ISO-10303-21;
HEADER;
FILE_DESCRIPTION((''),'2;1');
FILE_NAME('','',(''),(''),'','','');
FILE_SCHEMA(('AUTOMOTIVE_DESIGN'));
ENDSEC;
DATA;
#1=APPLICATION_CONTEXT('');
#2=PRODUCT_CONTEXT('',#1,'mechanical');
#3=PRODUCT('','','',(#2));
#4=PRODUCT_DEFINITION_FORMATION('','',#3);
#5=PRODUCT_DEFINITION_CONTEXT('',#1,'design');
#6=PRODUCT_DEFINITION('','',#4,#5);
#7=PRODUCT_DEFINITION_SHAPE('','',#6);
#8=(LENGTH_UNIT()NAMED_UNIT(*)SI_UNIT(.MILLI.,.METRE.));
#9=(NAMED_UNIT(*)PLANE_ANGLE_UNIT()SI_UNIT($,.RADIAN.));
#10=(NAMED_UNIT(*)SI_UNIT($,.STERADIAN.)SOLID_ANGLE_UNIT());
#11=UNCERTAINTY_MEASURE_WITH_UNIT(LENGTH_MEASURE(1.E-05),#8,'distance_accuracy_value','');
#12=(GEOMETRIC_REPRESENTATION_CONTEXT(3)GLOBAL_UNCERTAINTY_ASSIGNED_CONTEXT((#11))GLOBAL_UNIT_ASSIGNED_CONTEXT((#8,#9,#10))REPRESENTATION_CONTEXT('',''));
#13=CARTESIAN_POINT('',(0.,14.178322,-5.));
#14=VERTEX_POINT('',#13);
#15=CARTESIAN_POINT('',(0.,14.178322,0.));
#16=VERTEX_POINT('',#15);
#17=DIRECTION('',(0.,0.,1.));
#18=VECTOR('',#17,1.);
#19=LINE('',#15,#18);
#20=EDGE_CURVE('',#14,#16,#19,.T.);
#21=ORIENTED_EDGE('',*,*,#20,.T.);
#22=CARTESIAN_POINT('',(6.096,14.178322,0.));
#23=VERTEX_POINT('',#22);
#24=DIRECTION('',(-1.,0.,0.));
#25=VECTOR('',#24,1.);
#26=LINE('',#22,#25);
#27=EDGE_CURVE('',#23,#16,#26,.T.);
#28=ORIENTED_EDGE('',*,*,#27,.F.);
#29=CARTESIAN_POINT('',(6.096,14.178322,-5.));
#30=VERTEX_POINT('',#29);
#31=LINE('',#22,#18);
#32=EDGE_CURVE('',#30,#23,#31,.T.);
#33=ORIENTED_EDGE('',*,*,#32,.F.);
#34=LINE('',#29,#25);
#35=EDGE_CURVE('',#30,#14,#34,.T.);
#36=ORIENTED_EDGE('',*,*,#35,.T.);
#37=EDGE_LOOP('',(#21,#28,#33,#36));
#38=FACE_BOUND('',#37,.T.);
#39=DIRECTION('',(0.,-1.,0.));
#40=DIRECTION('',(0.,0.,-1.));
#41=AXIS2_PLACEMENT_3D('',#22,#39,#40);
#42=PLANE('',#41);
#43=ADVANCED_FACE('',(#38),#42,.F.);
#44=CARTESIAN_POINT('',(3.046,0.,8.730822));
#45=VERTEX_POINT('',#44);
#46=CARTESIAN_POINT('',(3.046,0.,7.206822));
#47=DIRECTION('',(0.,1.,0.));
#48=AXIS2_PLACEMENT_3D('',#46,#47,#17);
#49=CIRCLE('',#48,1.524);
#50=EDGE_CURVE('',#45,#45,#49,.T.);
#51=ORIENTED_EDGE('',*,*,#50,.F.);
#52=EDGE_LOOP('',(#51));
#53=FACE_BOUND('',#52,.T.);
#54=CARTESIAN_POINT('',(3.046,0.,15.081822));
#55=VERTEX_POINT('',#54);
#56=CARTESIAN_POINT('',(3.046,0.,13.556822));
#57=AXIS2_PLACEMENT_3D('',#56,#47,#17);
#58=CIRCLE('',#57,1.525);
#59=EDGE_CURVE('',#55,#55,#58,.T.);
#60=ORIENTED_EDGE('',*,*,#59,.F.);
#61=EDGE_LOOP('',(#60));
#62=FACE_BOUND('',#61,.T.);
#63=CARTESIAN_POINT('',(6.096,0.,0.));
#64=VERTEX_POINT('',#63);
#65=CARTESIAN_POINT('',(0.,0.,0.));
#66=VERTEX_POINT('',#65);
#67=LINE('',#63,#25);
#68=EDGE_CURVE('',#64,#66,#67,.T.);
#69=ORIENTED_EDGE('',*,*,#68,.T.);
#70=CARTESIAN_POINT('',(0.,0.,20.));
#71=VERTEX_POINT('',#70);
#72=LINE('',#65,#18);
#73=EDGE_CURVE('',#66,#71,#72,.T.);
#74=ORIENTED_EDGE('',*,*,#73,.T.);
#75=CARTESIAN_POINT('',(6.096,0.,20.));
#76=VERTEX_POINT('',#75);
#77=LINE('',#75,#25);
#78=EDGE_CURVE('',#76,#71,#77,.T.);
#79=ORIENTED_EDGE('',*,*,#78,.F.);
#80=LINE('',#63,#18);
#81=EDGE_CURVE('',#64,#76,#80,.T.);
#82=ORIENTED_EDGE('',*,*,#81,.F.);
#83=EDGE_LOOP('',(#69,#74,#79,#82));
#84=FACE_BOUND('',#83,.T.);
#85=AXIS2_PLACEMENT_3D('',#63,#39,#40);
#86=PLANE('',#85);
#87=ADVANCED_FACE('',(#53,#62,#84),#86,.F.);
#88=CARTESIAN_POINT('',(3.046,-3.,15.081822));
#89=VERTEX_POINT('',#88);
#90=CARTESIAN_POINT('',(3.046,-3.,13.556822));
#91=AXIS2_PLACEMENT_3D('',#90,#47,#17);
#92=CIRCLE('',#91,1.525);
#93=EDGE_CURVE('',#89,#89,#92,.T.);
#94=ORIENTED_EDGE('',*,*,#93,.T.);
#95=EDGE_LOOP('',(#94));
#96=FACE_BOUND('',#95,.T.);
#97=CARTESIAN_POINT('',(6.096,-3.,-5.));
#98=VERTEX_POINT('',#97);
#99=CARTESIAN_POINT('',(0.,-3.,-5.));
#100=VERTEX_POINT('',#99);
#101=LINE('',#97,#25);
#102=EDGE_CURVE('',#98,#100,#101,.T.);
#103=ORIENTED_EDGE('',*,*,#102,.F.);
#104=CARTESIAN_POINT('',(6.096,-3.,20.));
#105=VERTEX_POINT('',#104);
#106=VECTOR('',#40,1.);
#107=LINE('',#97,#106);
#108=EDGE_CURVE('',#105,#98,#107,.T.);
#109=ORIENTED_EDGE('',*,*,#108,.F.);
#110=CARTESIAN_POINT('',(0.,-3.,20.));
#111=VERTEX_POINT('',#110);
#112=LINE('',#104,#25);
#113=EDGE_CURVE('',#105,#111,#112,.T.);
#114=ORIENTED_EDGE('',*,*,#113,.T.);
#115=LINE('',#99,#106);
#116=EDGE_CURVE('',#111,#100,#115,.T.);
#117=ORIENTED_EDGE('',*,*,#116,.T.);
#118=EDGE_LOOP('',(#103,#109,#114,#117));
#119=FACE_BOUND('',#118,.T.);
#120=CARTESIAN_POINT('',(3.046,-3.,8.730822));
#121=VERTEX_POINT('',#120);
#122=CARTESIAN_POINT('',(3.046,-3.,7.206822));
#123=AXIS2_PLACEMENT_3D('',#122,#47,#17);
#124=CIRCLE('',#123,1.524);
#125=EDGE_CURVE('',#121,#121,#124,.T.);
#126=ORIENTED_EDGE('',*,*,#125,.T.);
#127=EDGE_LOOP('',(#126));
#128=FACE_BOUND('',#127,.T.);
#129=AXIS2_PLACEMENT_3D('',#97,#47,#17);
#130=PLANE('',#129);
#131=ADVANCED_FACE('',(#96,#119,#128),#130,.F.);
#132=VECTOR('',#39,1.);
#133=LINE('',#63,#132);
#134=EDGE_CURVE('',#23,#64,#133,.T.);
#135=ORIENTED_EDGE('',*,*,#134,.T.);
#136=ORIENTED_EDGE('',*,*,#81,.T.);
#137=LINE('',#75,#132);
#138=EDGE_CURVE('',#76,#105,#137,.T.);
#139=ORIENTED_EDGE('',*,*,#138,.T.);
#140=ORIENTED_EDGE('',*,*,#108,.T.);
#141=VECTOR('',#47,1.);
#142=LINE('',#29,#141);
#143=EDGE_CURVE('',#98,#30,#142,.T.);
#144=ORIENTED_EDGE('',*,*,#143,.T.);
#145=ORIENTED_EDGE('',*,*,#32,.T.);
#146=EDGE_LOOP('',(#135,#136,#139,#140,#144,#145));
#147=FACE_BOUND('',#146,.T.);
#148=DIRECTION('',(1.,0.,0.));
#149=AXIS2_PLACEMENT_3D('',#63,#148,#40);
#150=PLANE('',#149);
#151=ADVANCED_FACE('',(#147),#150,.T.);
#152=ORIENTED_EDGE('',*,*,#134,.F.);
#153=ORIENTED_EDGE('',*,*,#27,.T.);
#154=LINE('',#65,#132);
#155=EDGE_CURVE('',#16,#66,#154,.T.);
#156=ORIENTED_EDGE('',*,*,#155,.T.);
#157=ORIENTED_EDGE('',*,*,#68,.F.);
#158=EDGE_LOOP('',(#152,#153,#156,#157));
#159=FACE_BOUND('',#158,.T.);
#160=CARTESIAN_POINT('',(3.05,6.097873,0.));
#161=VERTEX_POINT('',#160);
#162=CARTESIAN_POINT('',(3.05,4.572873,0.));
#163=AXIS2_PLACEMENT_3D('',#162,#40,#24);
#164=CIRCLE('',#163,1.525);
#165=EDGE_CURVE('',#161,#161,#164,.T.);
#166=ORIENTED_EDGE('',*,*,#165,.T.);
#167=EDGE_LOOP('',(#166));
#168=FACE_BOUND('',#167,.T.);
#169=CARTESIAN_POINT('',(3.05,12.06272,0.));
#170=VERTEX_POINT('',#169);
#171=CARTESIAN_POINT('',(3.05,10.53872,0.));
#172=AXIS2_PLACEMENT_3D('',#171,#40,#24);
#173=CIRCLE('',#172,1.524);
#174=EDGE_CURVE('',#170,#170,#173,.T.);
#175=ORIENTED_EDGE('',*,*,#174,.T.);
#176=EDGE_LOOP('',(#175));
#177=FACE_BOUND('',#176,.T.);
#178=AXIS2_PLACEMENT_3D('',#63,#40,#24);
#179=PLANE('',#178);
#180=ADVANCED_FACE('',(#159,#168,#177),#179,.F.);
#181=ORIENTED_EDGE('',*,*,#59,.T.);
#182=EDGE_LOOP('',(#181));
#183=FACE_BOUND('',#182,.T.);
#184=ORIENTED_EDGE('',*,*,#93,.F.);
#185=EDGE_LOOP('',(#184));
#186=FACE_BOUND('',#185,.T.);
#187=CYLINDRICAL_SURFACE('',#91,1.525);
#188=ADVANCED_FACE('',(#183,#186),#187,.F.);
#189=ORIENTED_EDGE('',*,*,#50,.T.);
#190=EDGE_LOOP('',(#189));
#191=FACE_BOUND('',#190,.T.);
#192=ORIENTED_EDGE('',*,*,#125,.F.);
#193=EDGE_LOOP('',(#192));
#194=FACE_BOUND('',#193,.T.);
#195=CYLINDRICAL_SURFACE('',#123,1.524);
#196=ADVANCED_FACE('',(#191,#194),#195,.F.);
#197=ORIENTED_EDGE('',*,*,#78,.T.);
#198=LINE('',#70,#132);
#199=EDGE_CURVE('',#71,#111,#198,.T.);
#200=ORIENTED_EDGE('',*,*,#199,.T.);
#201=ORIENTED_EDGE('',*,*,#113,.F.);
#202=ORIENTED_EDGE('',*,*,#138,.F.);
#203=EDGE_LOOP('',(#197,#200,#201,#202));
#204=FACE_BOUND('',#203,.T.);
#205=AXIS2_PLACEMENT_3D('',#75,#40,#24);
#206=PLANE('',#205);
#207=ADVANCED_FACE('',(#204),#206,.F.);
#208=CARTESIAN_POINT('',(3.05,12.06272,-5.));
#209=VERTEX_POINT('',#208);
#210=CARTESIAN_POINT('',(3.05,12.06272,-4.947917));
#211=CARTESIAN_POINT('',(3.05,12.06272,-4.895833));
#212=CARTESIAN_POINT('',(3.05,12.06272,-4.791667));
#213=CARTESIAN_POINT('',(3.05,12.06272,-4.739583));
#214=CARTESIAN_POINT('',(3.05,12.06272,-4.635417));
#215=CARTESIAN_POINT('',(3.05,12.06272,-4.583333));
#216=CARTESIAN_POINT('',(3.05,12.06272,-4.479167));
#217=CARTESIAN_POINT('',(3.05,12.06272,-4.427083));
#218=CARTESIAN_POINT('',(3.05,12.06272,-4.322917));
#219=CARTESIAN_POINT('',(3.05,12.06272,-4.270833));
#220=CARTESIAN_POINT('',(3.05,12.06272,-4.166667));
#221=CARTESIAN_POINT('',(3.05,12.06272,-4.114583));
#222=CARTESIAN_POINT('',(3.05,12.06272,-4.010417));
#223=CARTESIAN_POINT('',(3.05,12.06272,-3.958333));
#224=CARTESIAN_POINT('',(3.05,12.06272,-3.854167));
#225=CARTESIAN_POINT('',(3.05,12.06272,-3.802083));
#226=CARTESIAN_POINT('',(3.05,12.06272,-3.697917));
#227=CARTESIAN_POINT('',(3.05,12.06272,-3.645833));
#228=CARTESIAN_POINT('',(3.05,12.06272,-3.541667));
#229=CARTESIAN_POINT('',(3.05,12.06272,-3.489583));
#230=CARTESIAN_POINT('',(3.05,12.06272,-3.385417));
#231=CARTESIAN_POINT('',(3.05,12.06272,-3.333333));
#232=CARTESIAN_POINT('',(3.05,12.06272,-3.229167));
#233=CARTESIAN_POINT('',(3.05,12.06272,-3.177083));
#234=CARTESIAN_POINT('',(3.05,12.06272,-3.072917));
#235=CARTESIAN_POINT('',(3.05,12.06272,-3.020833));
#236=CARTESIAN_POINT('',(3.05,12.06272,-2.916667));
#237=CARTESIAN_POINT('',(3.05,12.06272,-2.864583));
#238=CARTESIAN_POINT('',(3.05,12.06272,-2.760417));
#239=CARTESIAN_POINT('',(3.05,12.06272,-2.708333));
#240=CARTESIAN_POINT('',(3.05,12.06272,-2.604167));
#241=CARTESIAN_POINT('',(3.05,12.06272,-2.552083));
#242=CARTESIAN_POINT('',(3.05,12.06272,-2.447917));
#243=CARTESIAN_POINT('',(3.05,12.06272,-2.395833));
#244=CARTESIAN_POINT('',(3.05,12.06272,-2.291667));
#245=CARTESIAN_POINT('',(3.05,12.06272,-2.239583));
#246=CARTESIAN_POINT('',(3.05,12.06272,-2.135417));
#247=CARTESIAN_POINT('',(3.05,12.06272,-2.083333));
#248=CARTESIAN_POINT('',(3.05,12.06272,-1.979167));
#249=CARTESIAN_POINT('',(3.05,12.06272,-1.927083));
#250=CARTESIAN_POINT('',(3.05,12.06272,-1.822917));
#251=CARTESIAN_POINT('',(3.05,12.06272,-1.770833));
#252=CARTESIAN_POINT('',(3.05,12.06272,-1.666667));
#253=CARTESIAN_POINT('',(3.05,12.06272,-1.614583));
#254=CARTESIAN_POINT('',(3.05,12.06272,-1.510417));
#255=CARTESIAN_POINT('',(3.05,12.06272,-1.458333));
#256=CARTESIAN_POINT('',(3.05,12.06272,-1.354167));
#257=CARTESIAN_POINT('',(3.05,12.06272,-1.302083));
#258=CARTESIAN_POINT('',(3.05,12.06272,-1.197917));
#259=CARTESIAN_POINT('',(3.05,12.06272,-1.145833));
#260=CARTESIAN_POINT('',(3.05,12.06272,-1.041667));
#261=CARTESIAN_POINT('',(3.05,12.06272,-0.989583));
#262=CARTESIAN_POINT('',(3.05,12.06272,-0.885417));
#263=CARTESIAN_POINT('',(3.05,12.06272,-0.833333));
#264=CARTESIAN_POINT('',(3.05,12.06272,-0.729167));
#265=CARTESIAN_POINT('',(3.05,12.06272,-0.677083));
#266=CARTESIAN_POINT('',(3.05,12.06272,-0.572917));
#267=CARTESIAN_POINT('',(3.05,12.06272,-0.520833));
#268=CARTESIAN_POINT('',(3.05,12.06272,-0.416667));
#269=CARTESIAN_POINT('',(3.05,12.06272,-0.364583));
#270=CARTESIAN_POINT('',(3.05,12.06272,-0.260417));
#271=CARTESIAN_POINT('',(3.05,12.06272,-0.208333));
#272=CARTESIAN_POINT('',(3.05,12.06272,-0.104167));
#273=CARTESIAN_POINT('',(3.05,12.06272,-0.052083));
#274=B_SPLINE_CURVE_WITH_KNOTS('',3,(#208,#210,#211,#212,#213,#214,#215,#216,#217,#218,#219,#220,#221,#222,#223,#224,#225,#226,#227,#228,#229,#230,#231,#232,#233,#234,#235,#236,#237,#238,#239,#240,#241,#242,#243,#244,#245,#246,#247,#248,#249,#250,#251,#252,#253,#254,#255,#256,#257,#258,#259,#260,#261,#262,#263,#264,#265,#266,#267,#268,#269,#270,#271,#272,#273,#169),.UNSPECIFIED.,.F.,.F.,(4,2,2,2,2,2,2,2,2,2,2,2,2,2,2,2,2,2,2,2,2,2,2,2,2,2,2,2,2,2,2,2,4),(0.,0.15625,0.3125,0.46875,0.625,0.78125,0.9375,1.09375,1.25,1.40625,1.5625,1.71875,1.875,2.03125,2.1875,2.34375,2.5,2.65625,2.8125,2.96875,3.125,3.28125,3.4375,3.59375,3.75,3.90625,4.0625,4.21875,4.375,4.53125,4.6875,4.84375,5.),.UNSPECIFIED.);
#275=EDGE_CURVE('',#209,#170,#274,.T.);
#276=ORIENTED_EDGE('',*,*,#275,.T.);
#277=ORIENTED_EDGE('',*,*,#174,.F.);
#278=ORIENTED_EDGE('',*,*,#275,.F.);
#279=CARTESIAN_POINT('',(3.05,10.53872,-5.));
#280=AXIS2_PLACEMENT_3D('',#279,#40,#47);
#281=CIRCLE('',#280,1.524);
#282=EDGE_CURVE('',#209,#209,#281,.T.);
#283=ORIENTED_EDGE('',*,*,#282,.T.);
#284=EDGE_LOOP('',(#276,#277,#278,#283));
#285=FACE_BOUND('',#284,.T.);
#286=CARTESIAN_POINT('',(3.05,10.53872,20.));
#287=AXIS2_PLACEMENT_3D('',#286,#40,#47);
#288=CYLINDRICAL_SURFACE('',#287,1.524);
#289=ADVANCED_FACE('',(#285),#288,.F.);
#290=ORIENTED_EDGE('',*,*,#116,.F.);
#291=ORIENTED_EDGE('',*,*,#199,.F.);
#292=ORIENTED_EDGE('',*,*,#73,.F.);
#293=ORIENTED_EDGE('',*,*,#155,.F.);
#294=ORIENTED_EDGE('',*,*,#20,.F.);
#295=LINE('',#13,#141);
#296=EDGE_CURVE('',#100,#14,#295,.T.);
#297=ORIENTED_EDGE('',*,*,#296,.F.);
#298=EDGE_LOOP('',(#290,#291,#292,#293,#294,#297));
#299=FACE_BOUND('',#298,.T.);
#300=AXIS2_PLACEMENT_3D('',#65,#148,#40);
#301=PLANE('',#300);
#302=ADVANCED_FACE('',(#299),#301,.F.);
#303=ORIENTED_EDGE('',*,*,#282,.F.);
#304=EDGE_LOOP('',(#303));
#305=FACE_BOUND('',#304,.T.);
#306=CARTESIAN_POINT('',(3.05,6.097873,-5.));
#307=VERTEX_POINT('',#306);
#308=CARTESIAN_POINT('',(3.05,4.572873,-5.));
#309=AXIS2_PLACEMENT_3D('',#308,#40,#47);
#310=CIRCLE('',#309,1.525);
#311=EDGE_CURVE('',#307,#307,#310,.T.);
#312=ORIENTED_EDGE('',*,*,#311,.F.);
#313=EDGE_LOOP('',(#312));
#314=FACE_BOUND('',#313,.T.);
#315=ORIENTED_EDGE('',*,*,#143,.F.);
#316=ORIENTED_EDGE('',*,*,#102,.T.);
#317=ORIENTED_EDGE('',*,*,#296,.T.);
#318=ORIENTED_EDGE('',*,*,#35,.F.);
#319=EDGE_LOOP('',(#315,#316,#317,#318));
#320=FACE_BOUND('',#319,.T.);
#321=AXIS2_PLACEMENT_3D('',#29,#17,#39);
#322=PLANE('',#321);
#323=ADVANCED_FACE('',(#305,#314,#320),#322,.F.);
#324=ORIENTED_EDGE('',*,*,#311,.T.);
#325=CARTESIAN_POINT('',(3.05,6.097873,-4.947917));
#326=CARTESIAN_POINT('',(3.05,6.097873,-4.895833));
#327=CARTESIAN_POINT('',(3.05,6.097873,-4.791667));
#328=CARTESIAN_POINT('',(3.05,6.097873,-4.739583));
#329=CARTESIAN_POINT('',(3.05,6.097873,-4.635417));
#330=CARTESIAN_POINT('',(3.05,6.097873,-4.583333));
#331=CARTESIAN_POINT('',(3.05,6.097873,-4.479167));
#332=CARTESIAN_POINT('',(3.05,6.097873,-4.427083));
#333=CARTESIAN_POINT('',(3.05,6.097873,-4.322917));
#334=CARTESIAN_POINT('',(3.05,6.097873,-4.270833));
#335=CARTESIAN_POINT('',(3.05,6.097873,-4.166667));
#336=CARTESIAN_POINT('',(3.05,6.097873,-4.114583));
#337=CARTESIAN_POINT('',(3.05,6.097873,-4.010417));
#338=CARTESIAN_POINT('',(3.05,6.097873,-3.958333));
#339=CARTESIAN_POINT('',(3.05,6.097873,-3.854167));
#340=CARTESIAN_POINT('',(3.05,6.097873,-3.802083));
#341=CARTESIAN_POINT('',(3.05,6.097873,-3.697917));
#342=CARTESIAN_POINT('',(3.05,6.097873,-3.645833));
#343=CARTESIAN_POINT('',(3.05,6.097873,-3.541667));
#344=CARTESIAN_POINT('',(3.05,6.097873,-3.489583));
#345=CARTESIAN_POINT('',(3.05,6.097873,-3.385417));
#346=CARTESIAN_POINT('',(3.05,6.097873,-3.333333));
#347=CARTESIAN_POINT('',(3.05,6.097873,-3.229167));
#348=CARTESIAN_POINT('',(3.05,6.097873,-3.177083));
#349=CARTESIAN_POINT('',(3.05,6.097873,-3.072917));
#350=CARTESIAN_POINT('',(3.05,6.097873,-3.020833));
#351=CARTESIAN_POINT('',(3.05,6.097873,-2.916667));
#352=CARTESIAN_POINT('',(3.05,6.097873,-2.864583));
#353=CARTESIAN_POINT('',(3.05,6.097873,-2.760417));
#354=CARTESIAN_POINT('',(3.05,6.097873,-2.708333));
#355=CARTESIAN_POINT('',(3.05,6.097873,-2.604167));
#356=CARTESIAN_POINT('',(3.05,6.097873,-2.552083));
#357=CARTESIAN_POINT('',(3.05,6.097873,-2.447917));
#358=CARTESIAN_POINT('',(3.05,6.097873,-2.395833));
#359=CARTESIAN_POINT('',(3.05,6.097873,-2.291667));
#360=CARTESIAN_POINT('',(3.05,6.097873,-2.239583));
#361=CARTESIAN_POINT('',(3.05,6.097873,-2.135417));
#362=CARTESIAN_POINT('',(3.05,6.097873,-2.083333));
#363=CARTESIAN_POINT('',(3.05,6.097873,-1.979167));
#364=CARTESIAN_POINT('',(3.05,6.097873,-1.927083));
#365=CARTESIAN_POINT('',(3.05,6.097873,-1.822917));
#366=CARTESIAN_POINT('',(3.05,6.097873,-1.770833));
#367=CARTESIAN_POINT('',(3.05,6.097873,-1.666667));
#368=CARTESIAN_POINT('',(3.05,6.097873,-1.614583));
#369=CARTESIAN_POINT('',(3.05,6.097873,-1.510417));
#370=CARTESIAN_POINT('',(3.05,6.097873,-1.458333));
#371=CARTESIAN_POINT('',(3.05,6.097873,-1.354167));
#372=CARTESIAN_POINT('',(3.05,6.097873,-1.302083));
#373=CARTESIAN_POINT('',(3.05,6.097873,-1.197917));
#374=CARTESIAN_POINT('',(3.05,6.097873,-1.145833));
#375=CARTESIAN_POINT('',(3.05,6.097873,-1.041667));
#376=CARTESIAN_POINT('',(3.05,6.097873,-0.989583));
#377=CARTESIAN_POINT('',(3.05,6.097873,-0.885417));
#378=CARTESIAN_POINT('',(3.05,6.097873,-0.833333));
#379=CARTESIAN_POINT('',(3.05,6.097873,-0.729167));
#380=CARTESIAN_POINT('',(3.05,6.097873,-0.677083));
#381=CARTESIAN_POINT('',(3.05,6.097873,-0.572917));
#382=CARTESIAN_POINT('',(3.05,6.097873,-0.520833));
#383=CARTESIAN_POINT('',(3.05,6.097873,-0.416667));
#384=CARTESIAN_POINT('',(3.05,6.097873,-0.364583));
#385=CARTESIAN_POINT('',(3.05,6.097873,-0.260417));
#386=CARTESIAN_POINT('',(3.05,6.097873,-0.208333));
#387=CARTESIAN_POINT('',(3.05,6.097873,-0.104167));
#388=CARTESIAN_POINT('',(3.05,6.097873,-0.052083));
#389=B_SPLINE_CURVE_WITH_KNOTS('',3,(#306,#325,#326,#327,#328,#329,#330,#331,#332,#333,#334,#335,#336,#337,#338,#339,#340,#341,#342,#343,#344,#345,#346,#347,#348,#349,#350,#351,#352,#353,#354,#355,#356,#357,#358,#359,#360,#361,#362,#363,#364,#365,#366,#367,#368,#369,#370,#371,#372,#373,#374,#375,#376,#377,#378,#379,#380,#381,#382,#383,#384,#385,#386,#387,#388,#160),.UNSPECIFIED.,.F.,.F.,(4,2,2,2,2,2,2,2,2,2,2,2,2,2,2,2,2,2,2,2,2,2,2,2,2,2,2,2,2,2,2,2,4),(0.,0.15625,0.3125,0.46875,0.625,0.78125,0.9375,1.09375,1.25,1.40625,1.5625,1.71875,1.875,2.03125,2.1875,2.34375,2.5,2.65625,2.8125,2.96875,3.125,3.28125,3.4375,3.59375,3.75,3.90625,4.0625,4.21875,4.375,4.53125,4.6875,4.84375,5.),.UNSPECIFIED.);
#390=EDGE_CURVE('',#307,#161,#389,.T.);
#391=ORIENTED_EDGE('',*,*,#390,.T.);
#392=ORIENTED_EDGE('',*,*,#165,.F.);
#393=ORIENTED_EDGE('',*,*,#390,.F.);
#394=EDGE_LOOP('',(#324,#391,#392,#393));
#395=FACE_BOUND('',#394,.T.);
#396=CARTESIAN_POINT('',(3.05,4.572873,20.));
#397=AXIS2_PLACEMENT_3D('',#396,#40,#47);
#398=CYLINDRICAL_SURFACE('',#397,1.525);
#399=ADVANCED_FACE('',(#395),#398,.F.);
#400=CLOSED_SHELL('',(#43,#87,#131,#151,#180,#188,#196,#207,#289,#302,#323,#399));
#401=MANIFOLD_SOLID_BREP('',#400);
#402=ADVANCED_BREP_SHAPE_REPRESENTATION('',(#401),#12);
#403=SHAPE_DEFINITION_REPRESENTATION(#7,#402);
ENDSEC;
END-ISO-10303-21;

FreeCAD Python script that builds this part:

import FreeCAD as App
import Part
import Sketcher

V = App.Vector
Q = App.Units.Quantity


def add_polygon(sketch, points):
    """Adds a closed chain of lines whose ends are joined by coincident constraints."""
    first, n = sketch.GeometryCount, len(points)
    for a, b in zip(points, points[1:] + points[:1]):
        sketch.addGeometry(Part.LineSegment(App.Vector(*a, 0), App.Vector(*b, 0)), False)
    for i in range(n):
        sketch.addConstraint(Sketcher.Constraint("Coincident", first + i, 2, first + (i + 1) % n, 1))

doc = App.newDocument("Part")
body = doc.addObject("PartDesign::Body", "Body")

# Sketch on YZ plane
sketch1 = body.newObject("Sketcher::SketchObject", "Sketch")
sketch1.AttachmentSupport = (doc.getObject("YZ_Plane"), [""])
sketch1.MapMode = "FlatFace"
add_polygon(sketch1, [(14.2, 0), (0, 0), (0, 20), (-3, 20), (-3, -5), (14.2, -5)])  # lines 0-5
sketch1.addConstraint([
    Sketcher.Constraint("Horizontal", 0),
    Sketcher.Constraint("Vertical", 1),
    Sketcher.Constraint("Horizontal", 2),
    Sketcher.Constraint("Vertical", 3),
    Sketcher.Constraint("Horizontal", 4),
    Sketcher.Constraint("Vertical", 5),
    Sketcher.Constraint("Coincident", 0, 2, -1, 1),
    Sketcher.Constraint("DistanceX", 2, 2, 2, 1, Q("3 mm")),
    Sketcher.Constraint("DistanceY", 1, 1, 1, 2, Q("20 mm")),
    Sketcher.Constraint("DistanceY", 3, 2, 3, 1, Q("25 mm")),
    Sketcher.Constraint("DistanceX", 0, 2, 0, 1, Q("14.178322 mm")),
])
pad1 = body.newObject("PartDesign::Pad", "Pad")
pad1.Profile = sketch1
pad1.Length = 6.096

# Sketch on XY plane
sketch2 = body.newObject("Sketcher::SketchObject", "Sketch001")
sketch2.AttachmentSupport = (doc.getObject("XY_Plane"), [""])
sketch2.MapMode = "FlatFace"
sketch2.AttachmentOffset = App.Placement(V(0, 0, -5), App.Rotation())
sketch2.addGeometry([
    Part.Circle(V(3, 10.5, 0), V(0, 0, 1), 1.5),
    Part.Circle(V(3, 4.6, 0), V(0, 0, 1), 1.5),
], False)
sketch2.addConstraint([
    Sketcher.Constraint("Vertical", 0, 3, 1, 3),
    Sketcher.Constraint("Diameter", 1, Q("3.05 mm")),
    Sketcher.Constraint("Diameter", 0, Q("3.048 mm")),
    Sketcher.Constraint("DistanceX", -1, 1, 0, 3, Q("3.05 mm")),
    Sketcher.Constraint("DistanceY", -1, 1, 0, 3, Q("10.53872 mm")),
    Sketcher.Constraint("DistanceY", -1, 1, 1, 3, Q("4.572873 mm")),
])
pocket1 = body.newObject("PartDesign::Pocket", "Pocket")
pocket1.Profile = sketch2
pocket1.Type = "ThroughAll"
pocket1.Reversed = True

# Sketch on XZ plane
sketch3 = body.newObject("Sketcher::SketchObject", "Sketch002")
sketch3.AttachmentSupport = (doc.getObject("XZ_Plane"), [""])
sketch3.MapMode = "FlatFace"
sketch3.addGeometry([
    Part.Circle(V(3, 7.2, 0), V(0, 0, 1), 1.5),
    Part.Circle(V(3, 13.6, 0), V(0, 0, 1), 1.5),
], False)
sketch3.addConstraint([
    Sketcher.Constraint("Vertical", 0, 3, 1, 3),
    Sketcher.Constraint("Diameter", 1, Q("3.05 mm")),
    Sketcher.Constraint("Diameter", 0, Q("3.048 mm")),
    Sketcher.Constraint("DistanceY", 0, 3, 1, 3, Q("6.35 mm")),
    Sketcher.Constraint("DistanceX", -1, 1, 0, 3, Q("3.046 mm")),
    Sketcher.Constraint("DistanceY", -1, 1, 0, 3, Q("7.206822 mm")),
])
pocket2 = body.newObject("PartDesign::Pocket", "Pocket001")
pocket2.Profile = sketch3
pocket2.Type = "ThroughAll"
pocket2.Reversed = True

doc.recompute()
